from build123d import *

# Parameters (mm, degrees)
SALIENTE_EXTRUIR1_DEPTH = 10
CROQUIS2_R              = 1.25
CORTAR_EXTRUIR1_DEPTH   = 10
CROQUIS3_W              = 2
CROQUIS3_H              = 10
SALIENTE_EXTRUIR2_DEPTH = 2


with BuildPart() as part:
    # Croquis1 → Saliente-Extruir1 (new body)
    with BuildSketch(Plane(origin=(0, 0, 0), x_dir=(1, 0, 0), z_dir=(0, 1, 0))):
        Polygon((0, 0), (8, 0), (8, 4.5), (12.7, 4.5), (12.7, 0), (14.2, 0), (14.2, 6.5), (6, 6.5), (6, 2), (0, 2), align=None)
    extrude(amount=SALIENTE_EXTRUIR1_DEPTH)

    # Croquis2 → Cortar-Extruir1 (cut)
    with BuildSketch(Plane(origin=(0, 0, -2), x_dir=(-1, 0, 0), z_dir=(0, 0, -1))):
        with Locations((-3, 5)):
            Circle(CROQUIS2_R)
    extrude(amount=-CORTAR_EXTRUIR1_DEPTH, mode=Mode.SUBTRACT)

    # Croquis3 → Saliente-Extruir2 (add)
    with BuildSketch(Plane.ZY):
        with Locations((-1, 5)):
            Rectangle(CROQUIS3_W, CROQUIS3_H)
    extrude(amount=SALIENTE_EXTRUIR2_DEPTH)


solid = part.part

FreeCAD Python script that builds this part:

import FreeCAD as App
import Part
import Sketcher
Q = App.Units.Quantity

doc = App.newDocument("Part")
body = doc.addObject("PartDesign::Body", "Body")

# Sketch on XZ plane
sketch1 = body.newObject("Sketcher::SketchObject", "Sketch")
sketch1.AttachmentSupport = (doc.getObject("XZ_Plane"), [""])
sketch1.MapMode = "FlatFace"
sketch1.addGeometry(Part.LineSegment(App.Vector(0, 0, 0), App.Vector(8, 0, 0)), False)
sketch1.addGeometry(Part.LineSegment(App.Vector(8, 0, 0), App.Vector(8, -4.5, 0)), False)
sketch1.addGeometry(Part.LineSegment(App.Vector(8, -4.5, 0), App.Vector(12.7, -4.5, 0)), False)
sketch1.addGeometry(Part.LineSegment(App.Vector(12.7, -4.5, 0), App.Vector(12.7, 0, 0)), False)
sketch1.addGeometry(Part.LineSegment(App.Vector(12.7, 0, 0), App.Vector(14.2, 0, 0)), False)
sketch1.addGeometry(Part.LineSegment(App.Vector(14.2, 0, 0), App.Vector(14.2, -6.5, 0)), False)
sketch1.addGeometry(Part.LineSegment(App.Vector(14.2, -6.5, 0), App.Vector(6, -6.5, 0)), False)
sketch1.addGeometry(Part.LineSegment(App.Vector(6, -6.5, 0), App.Vector(6, -2, 0)), False)
sketch1.addGeometry(Part.LineSegment(App.Vector(6, -2, 0), App.Vector(0, -2, 0)), False)
sketch1.addGeometry(Part.LineSegment(App.Vector(0, -2, 0), App.Vector(0, 0, 0)), False)
sketch1.addConstraint(Sketcher.Constraint("Coincident", 0, 2, 1, 1))
sketch1.addConstraint(Sketcher.Constraint("Coincident", 1, 2, 2, 1))
sketch1.addConstraint(Sketcher.Constraint("Coincident", 2, 2, 3, 1))
sketch1.addConstraint(Sketcher.Constraint("Coincident", 3, 2, 4, 1))
sketch1.addConstraint(Sketcher.Constraint("Coincident", 4, 2, 5, 1))
sketch1.addConstraint(Sketcher.Constraint("Coincident", 5, 2, 6, 1))
sketch1.addConstraint(Sketcher.Constraint("Coincident", 6, 2, 7, 1))
sketch1.addConstraint(Sketcher.Constraint("Coincident", 7, 2, 8, 1))
sketch1.addConstraint(Sketcher.Constraint("Coincident", 8, 2, 9, 1))
sketch1.addConstraint(Sketcher.Constraint("Coincident", 9, 2, 0, 1))
sketch1.addConstraint(Sketcher.Constraint("Horizontal", 0))
sketch1.addConstraint(Sketcher.Constraint("Vertical", 1))
sketch1.addConstraint(Sketcher.Constraint("Horizontal", 2))
sketch1.addConstraint(Sketcher.Constraint("Vertical", 3))
sketch1.addConstraint(Sketcher.Constraint("Horizontal", 4))
sketch1.addConstraint(Sketcher.Constraint("Vertical", 5))
sketch1.addConstraint(Sketcher.Constraint("Horizontal", 6))
sketch1.addConstraint(Sketcher.Constraint("Vertical", 7))
sketch1.addConstraint(Sketcher.Constraint("Horizontal", 8))
sketch1.addConstraint(Sketcher.Constraint("Vertical", 9))
sketch1.addConstraint(Sketcher.Constraint("Coincident", 9, 2, -1, 1))
sketch1.addConstraint(Sketcher.Constraint("PointOnObject", 3, 2, -1))
sketch1.addConstraint(Sketcher.Constraint("Equal", 3, 7))
sketch1.addConstraint(Sketcher.Constraint("DistanceX", 0, 1, 0, 2, Q("8 mm")))
sketch1.addConstraint(Sketcher.Constraint("DistanceX", 8, 2, 8, 1, Q("6 mm")))
sketch1.addConstraint(Sketcher.Constraint("DistanceY", 9, 1, 9, 2, Q("2 mm")))
sketch1.addConstraint(Sketcher.Constraint("DistanceX", 2, 1, 2, 2, Q("4.7 mm")))
sketch1.addConstraint(Sketcher.Constraint("DistanceX", 4, 1, 4, 2, Q("1.5 mm")))
sketch1.addConstraint(Sketcher.Constraint("DistanceY", 1, 2, 1, 1, Q("4.5 mm")))
pad1 = body.newObject("PartDesign::Pad", "Pad")
pad1.Profile = sketch1
pad1.Length = 10
pad1.Reversed = True

# Sketch on XY plane
sketch2 = body.newObject("Sketcher::SketchObject", "Sketch001")
sketch2.AttachmentSupport = (doc.getObject("XY_Plane"), [""])
sketch2.MapMode = "FlatFace"
sketch2.AttachmentOffset = App.Placement(App.Vector(0, 0, -2), App.Rotation())
sketch2.addGeometry(Part.Circle(App.Vector(3, 5, 0), App.Vector(0, 0, 1), 1.2), False)
sketch2.addConstraint(Sketcher.Constraint("Diameter", 0, Q("2.5 mm")))
sketch2.addConstraint(Sketcher.Constraint("DistanceX", -1, 1, 0, 3, Q("3 mm")))
sketch2.addConstraint(Sketcher.Constraint("DistanceY", -1, 1, 0, 3, Q("5 mm")))
pocket1 = body.newObject("PartDesign::Pocket", "Pocket")
pocket1.Profile = sketch2
pocket1.Length = 10
pocket1.Reversed = True

# Sketch on YZ plane
sketch3 = body.newObject("Sketcher::SketchObject", "Sketch002")
sketch3.AttachmentSupport = (doc.getObject("YZ_Plane"), [""])
sketch3.MapMode = "FlatFace"
sketch3.addGeometry(Part.LineSegment(App.Vector(10, -2, 0), App.Vector(0, -2, 0)), False)
sketch3.addGeometry(Part.LineSegment(App.Vector(0, -2, 0), App.Vector(0, 0, 0)), False)
sketch3.addGeometry(Part.LineSegment(App.Vector(0, 0, 0), App.Vector(10, 0, 0)), False)
sketch3.addGeometry(Part.LineSegment(App.Vector(10, 0, 0), App.Vector(10, -2, 0)), False)
sketch3.addConstraint(Sketcher.Constraint("Coincident", 0, 2, 1, 1))
sketch3.addConstraint(Sketcher.Constraint("Coincident", 1, 2, 2, 1))
sketch3.addConstraint(Sketcher.Constraint("Coincident", 2, 2, 3, 1))
sketch3.addConstraint(Sketcher.Constraint("Coincident", 3, 2, 0, 1))
sketch3.addConstraint(Sketcher.Constraint("Horizontal", 0))
sketch3.addConstraint(Sketcher.Constraint("Vertical", 1))
sketch3.addConstraint(Sketcher.Constraint("Horizontal", 2))
sketch3.addConstraint(Sketcher.Constraint("Vertical", 3))
sketch3.addConstraint(Sketcher.Constraint("Coincident", 1, 2, -1, 1))
sketch3.addConstraint(Sketcher.Constraint("DistanceX", 0, 2, 0, 1, Q("10 mm")))
sketch3.addConstraint(Sketcher.Constraint("DistanceY", 1, 1, 1, 2, Q("2 mm")))
pad2 = body.newObject("PartDesign::Pad", "Pad001")
pad2.Profile = sketch3
pad2.Length = 2
pad2.Reversed = True

doc.recompute()
